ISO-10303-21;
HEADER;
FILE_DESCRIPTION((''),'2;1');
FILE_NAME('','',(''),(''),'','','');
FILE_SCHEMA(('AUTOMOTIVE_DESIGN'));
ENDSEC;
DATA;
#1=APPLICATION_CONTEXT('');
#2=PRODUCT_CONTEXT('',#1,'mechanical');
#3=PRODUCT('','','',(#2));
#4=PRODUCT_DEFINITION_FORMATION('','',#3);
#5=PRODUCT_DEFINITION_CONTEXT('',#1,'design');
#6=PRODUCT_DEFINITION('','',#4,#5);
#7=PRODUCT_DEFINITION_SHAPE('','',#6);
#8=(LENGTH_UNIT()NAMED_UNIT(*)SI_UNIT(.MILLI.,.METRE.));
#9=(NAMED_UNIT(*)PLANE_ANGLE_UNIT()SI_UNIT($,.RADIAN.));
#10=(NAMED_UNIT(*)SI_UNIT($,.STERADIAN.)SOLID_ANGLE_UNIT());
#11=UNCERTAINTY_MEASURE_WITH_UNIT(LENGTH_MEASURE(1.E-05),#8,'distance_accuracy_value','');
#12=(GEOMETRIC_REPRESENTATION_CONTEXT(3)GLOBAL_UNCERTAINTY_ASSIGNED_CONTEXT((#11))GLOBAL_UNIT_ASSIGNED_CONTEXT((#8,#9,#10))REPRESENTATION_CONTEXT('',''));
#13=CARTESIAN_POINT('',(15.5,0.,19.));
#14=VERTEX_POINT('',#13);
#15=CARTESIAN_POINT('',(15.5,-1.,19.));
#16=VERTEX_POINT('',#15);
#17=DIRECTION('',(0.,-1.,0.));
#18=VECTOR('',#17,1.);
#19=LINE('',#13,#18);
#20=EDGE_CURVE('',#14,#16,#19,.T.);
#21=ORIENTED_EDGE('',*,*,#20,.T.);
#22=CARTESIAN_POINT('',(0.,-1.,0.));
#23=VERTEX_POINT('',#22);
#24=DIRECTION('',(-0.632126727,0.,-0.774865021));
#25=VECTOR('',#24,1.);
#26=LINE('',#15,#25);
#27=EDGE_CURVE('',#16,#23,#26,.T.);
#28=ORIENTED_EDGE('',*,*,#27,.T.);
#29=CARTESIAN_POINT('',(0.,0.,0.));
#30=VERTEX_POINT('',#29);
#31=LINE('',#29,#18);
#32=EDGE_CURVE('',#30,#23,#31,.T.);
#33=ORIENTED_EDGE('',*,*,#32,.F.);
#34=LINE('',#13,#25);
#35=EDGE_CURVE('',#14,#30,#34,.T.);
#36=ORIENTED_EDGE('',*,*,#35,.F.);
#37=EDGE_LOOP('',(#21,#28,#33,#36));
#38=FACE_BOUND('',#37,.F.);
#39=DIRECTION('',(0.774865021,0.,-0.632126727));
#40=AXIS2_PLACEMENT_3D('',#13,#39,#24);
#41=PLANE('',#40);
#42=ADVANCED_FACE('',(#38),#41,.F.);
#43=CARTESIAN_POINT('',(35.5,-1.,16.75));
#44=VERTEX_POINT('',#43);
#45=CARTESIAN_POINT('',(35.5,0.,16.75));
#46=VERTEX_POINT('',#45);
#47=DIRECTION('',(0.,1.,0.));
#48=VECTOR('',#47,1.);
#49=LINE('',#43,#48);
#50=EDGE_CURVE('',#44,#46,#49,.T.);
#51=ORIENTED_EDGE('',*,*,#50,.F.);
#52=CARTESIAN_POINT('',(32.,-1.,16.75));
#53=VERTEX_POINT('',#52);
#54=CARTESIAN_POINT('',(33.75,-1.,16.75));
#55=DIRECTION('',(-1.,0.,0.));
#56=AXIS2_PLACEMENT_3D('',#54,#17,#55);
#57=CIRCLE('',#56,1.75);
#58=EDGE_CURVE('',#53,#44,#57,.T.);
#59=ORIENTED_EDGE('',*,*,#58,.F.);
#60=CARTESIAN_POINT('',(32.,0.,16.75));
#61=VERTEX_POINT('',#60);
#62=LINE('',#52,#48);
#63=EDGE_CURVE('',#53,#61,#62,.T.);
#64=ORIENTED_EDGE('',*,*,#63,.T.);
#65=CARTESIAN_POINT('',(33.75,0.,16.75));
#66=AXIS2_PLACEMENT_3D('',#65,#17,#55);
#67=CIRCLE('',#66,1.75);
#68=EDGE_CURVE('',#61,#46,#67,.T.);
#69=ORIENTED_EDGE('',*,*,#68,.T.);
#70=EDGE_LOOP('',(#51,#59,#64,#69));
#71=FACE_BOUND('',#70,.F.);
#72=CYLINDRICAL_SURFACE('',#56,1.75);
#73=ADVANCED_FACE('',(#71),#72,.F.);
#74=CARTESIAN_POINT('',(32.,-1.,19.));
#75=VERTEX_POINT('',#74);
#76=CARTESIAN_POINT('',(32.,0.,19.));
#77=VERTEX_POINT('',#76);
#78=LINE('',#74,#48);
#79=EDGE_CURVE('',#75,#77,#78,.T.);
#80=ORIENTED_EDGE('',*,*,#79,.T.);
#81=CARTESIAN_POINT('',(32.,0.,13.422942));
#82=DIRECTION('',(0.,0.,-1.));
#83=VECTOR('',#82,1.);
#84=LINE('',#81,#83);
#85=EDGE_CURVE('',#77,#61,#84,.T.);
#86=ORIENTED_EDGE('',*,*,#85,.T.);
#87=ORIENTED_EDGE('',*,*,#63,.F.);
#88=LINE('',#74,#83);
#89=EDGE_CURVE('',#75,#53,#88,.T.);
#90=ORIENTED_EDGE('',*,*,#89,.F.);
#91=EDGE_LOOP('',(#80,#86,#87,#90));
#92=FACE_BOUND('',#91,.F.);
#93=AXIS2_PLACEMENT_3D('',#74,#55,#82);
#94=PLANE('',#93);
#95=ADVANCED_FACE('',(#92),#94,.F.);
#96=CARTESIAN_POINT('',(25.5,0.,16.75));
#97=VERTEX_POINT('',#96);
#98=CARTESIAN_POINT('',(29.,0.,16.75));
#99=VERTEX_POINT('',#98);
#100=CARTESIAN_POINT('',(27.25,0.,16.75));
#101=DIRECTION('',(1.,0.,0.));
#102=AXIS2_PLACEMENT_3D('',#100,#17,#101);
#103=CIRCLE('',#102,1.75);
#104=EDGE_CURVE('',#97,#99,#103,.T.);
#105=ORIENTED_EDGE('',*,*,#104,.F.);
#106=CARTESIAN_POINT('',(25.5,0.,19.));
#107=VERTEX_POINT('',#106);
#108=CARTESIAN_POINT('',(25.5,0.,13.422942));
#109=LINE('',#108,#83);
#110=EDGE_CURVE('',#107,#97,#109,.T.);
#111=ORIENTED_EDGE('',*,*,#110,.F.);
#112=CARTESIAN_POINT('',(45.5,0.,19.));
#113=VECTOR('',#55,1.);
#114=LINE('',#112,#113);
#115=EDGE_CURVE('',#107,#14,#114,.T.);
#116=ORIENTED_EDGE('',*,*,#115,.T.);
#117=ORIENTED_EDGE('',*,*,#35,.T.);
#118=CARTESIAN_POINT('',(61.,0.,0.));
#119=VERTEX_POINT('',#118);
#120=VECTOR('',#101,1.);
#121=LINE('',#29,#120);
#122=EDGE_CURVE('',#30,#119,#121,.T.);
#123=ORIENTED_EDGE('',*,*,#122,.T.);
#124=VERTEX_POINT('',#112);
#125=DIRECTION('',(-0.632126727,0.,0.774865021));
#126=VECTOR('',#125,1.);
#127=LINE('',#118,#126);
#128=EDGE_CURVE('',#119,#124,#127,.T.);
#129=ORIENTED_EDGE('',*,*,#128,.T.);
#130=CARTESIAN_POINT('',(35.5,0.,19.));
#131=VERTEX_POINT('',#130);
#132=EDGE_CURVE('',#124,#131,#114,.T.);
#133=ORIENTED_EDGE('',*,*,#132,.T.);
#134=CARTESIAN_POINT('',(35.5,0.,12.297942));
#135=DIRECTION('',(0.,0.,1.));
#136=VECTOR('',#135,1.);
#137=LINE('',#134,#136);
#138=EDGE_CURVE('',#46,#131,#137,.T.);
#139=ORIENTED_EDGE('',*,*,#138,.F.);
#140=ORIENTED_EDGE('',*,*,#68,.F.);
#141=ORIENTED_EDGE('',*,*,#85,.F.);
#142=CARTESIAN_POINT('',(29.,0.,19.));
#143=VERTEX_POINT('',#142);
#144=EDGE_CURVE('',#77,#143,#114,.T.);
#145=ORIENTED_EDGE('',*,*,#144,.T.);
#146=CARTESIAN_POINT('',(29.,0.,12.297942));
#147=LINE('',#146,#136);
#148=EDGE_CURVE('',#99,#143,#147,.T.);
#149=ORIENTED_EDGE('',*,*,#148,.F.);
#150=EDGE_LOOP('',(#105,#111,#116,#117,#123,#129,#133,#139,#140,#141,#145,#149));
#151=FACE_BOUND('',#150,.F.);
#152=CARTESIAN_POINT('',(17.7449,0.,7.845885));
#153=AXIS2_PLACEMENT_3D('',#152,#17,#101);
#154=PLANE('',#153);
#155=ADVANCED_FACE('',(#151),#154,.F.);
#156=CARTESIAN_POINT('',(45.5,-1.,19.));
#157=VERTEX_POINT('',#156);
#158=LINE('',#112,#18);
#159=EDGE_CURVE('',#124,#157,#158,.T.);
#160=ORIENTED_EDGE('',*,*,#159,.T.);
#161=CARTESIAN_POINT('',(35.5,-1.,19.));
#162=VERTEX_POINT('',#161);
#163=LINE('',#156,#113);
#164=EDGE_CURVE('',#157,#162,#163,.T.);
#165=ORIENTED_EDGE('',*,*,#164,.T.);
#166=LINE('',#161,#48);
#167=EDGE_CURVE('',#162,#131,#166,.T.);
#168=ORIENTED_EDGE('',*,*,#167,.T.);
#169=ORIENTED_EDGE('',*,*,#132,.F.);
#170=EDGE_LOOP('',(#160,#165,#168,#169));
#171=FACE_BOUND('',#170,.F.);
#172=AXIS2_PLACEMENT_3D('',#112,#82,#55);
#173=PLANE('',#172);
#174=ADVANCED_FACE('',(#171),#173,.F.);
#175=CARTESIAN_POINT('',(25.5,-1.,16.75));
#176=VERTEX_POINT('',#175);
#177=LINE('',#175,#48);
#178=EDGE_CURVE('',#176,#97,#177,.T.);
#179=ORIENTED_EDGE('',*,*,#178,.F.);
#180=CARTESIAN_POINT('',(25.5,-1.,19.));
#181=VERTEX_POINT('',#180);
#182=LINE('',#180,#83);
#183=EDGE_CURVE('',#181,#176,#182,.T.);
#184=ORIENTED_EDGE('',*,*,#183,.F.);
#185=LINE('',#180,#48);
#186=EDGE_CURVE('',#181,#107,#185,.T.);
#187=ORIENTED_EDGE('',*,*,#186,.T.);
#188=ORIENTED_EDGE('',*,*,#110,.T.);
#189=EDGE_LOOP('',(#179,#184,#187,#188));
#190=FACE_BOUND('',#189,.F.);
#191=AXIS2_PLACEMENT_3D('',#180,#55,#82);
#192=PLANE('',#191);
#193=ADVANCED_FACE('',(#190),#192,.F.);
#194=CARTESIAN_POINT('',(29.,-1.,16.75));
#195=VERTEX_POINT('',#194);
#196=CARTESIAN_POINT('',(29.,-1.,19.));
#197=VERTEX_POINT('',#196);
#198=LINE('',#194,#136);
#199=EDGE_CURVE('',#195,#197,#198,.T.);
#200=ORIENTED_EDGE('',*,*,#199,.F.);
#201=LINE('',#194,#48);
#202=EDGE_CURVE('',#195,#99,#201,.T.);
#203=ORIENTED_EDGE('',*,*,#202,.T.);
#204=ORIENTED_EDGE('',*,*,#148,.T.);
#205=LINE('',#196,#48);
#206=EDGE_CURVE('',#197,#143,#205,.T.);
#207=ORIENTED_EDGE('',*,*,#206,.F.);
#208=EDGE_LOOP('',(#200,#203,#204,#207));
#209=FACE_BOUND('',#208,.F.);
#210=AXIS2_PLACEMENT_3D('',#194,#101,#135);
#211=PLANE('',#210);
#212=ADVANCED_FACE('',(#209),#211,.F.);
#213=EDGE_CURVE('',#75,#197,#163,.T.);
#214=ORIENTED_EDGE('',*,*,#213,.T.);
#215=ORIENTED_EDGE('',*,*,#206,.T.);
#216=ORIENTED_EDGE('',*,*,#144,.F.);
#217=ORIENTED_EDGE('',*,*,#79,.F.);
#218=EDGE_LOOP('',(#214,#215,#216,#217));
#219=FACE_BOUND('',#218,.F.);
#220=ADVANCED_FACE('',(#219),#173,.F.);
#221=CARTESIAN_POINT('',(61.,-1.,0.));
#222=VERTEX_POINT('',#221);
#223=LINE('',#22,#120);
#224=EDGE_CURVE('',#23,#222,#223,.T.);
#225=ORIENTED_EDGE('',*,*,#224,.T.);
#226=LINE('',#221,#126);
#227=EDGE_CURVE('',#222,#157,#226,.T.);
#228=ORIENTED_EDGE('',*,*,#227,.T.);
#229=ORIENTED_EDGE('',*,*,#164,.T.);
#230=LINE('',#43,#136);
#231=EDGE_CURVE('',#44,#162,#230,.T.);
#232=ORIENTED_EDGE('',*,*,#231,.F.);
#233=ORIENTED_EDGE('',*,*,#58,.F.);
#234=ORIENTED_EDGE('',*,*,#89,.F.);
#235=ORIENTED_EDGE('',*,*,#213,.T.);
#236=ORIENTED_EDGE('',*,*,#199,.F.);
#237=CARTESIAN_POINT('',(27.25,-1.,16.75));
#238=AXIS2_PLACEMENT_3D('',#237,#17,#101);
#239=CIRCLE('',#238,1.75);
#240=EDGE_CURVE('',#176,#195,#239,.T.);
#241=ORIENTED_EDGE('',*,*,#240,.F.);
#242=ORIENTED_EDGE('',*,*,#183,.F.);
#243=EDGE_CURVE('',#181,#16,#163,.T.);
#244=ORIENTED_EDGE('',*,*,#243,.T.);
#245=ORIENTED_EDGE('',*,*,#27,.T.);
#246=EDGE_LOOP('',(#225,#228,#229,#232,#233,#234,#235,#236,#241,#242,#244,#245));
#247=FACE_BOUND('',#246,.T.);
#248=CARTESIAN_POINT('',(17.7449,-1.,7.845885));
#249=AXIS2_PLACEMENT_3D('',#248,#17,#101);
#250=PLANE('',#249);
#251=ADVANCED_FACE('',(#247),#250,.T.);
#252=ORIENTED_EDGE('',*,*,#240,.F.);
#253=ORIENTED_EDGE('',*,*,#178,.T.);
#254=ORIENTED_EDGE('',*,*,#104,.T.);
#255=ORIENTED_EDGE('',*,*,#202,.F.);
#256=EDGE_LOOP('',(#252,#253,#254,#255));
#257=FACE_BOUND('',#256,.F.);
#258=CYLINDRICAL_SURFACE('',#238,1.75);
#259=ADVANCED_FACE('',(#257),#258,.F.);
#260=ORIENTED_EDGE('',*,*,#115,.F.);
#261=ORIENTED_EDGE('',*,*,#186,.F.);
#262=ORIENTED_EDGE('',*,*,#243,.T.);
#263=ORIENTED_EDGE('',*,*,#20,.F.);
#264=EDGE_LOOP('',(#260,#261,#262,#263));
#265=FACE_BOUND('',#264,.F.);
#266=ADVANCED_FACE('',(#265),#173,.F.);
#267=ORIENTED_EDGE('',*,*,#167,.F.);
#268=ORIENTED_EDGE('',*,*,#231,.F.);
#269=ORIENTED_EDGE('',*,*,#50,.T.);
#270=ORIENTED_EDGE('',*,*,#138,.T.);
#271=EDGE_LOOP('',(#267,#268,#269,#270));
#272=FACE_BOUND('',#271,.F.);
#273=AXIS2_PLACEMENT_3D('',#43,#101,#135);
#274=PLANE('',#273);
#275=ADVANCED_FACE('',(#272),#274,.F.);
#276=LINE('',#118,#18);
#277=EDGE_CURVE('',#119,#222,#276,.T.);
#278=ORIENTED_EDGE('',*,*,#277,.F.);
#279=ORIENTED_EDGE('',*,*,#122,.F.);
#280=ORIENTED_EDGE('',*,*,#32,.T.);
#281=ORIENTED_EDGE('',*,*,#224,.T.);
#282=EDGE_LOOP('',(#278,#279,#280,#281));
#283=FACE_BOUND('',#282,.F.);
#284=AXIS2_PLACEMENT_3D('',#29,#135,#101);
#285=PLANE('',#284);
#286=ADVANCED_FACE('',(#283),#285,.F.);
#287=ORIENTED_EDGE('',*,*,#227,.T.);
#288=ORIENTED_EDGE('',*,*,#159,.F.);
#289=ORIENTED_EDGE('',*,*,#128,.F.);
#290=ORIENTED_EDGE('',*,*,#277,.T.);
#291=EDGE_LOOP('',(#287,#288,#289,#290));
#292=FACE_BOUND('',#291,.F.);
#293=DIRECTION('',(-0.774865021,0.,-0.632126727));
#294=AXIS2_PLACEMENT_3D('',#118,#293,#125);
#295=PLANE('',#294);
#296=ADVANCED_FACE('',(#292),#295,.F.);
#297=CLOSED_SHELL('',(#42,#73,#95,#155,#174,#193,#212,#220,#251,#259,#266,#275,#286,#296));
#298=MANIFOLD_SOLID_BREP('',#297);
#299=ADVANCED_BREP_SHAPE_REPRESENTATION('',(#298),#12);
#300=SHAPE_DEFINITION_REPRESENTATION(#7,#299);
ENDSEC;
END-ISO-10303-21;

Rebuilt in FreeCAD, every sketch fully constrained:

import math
import FreeCAD as App
import Part
import Sketcher

doc = App.newDocument("Part")
body = doc.addObject("PartDesign::Body", "Body")

sketch1 = body.newObject("Sketcher::SketchObject", "Sketch")
sketch1.AttachmentSupport = (doc.getObject("XZ_Plane"), [""])
sketch1.MapMode = "FlatFace"
sketch1.addGeometry(Part.LineSegment(App.Vector(15.5, 19, 0), App.Vector(0, 0, 0)), False)
sketch1.addGeometry(Part.LineSegment(App.Vector(0, 0, 0), App.Vector(61, 0, 0)), False)
sketch1.addGeometry(Part.LineSegment(App.Vector(61, 0, 0), App.Vector(45.5, 19, 0)), False)
sketch1.addGeometry(Part.LineSegment(App.Vector(45.5, 19, 0), App.Vector(15.5, 19, 0)), False)
sketch1.addConstraint(Sketcher.Constraint("Coincident", 0, 2, 1, 1))
sketch1.addConstraint(Sketcher.Constraint("Coincident", 1, 2, 2, 1))
sketch1.addConstraint(Sketcher.Constraint("Coincident", 2, 2, 3, 1))
sketch1.addConstraint(Sketcher.Constraint("Coincident", 3, 2, 0, 1))
sketch1.addConstraint(Sketcher.Constraint("Horizontal", 1))
sketch1.addConstraint(Sketcher.Constraint("Horizontal", 3))
sketch1.addConstraint(Sketcher.Constraint("Coincident", 0, 2, -1, 1))
sketch1.addConstraint(Sketcher.Constraint("Equal", 0, 2))
sketch1.addConstraint(Sketcher.Constraint("DistanceX", 1, 1, 1, 2, 61.0))
sketch1.addConstraint(Sketcher.Constraint("DistanceX", 3, 2, 3, 1, 30.0))
sketch1.addConstraint(Sketcher.Constraint("DistanceY", -1, 1, 2, 2, 19.0))
pad1 = body.newObject("PartDesign::Pad", "Pad")
pad1.Profile = sketch1
pad1.Length = 1

sketch2 = body.newObject("Sketcher::SketchObject", "Sketch001")
sketch2.AttachmentSupport = (doc.getObject("XZ_Plane"), [""])
sketch2.MapMode = "FlatFace"
sketch2.AttachmentOffset = App.Placement(App.Vector(0, 0, 1), App.Rotation())
sketch2.addGeometry(Part.ArcOfCircle(Part.Circle(App.Vector(27.25, 16.75, 0), App.Vector(0, 0, 1), 1.75), math.radians(180), math.radians(360)), False)
sketch2.addGeometry(Part.LineSegment(App.Vector(29, 16.75, 0), App.Vector(29, 19, 0)), False)
sketch2.addGeometry(Part.LineSegment(App.Vector(29, 19, 0), App.Vector(25.5, 19, 0)), False)
sketch2.addGeometry(Part.LineSegment(App.Vector(25.5, 19, 0), App.Vector(25.5, 16.75, 0)), False)
sketch2.addGeometry(Part.ArcOfCircle(Part.Circle(App.Vector(33.75, 16.75, 0), App.Vector(0, 0, 1), 1.75), math.radians(180), math.radians(360)), False)
sketch2.addGeometry(Part.LineSegment(App.Vector(35.5, 16.75, 0), App.Vector(35.5, 19, 0)), False)
sketch2.addGeometry(Part.LineSegment(App.Vector(35.5, 19, 0), App.Vector(32, 19, 0)), False)
sketch2.addGeometry(Part.LineSegment(App.Vector(32, 19, 0), App.Vector(32, 16.75, 0)), False)
sketch2.addConstraint(Sketcher.Constraint("Tangent", 0, 2, 1, 1))
sketch2.addConstraint(Sketcher.Constraint("Coincident", 1, 2, 2, 1))
sketch2.addConstraint(Sketcher.Constraint("Coincident", 2, 2, 3, 1))
sketch2.addConstraint(Sketcher.Constraint("Tangent", 3, 2, 0, 1))
sketch2.addConstraint(Sketcher.Constraint("Tangent", 4, 2, 5, 1))
sketch2.addConstraint(Sketcher.Constraint("Coincident", 5, 2, 6, 1))
sketch2.addConstraint(Sketcher.Constraint("Coincident", 6, 2, 7, 1))
sketch2.addConstraint(Sketcher.Constraint("Tangent", 7, 2, 4, 1))
sketch2.addConstraint(Sketcher.Constraint("Vertical", 1))
sketch2.addConstraint(Sketcher.Constraint("Horizontal", 2))
sketch2.addConstraint(Sketcher.Constraint("Vertical", 3))
sketch2.addConstraint(Sketcher.Constraint("Vertical", 5))
sketch2.addConstraint(Sketcher.Constraint("Horizontal", 6))
sketch2.addConstraint(Sketcher.Constraint("Vertical", 7))
sketch2.addConstraint(Sketcher.Constraint("Equal", 0, 4))
sketch2.addConstraint(Sketcher.Constraint("Horizontal", 0, 3, 4, 3))
sketch2.addConstraint(Sketcher.Constraint("Horizontal", 2, 2, 5, 2))
sketch2.addConstraint(Sketcher.Constraint("Radius", 0, 1.75))
sketch2.addConstraint(Sketcher.Constraint("DistanceX", -1, 1, 0, 2, 29.0))
sketch2.addConstraint(Sketcher.Constraint("DistanceY", -1, 1, 1, 2, 19.0))
sketch2.addConstraint(Sketcher.Constraint("DistanceX", -1, 1, 6, 2, 32.0))
sketch2.addConstraint(Sketcher.Constraint("DistanceY", 1, 1, 1, 2, 2.25))
pocket1 = body.newObject("PartDesign::Pocket", "Pocket")
pocket1.Profile = sketch2
pocket1.Length = 25

doc.recompute()
